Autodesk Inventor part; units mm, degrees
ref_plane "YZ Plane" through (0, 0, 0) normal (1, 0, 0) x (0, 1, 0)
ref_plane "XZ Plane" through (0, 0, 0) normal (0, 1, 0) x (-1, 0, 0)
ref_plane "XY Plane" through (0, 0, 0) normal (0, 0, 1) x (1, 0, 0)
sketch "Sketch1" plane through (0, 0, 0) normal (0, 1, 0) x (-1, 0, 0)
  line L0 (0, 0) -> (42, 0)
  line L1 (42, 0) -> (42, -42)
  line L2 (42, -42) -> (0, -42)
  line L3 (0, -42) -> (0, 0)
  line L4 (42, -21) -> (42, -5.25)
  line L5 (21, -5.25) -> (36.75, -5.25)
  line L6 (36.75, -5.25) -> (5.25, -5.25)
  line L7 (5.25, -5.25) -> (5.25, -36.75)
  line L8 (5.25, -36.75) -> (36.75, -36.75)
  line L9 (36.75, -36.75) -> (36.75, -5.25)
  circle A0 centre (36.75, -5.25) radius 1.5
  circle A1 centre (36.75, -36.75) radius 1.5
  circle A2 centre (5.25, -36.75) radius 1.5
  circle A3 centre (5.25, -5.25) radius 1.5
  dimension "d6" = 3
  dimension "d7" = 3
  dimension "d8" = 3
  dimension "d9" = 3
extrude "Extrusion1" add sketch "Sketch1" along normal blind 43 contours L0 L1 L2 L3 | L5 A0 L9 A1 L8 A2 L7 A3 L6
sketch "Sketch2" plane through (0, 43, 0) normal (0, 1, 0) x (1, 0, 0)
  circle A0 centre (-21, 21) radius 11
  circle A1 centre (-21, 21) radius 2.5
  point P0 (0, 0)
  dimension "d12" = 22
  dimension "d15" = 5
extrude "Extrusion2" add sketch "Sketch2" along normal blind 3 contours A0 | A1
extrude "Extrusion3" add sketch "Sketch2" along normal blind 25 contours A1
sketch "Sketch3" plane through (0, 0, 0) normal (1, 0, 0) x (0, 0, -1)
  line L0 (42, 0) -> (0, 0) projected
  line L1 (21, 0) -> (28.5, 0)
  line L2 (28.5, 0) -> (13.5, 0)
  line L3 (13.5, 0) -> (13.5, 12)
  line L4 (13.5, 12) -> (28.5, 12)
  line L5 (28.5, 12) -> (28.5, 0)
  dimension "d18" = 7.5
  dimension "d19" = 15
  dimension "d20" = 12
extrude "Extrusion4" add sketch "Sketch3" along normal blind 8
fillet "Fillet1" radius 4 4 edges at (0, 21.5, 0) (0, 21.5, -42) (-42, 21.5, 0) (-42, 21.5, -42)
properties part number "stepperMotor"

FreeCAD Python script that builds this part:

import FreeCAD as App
import Part
import Sketcher
Q = App.Units.Quantity


def edges_at(feature, points):
    """Names of the edges that pass closest to the given points."""
    edges = feature.Shape.Edges
    near = lambda p: min(range(len(edges)), key=lambda i: edges[i].distToShape(Part.Vertex(*p))[0])
    return sorted({f"Edge{near(p) + 1}" for p in points})


def add_polygon(sketch, points):
    """Adds a closed chain of lines whose ends are joined by coincident constraints."""
    first, n = sketch.GeometryCount, len(points)
    for a, b in zip(points, points[1:] + points[:1]):
        sketch.addGeometry(Part.LineSegment(App.Vector(*a, 0), App.Vector(*b, 0)), False)
    for i in range(n):
        sketch.addConstraint(Sketcher.Constraint("Coincident", first + i, 2, first + (i + 1) % n, 1))

doc = App.newDocument("Part")
body = doc.addObject("PartDesign::Body", "Body")

# Sketch on XZ plane
sketch1 = doc.addObject("Sketcher::SketchObject", "Sketch")
body.addObject(sketch1)
sketch1.AttachmentSupport = (doc.XZ_Plane, [""])
sketch1.MapMode = "FlatFace"
add_polygon(sketch1, [(-42, 0), (0, 0), (0, -42), (-42, -42)])  # lines 0-3
sketch1.addGeometry(Part.Circle(App.Vector(-5.2, -5.2, 0), App.Vector(0, 0, 1), 1.5), False)  # 4
sketch1.addGeometry(Part.Circle(App.Vector(-5.2, -36.8, 0), App.Vector(0, 0, 1), 1.5), False)  # 5
sketch1.addGeometry(Part.Circle(App.Vector(-36.8, -36.8, 0), App.Vector(0, 0, 1), 1.5), False)  # 6
sketch1.addGeometry(Part.Circle(App.Vector(-36.8, -5.2, 0), App.Vector(0, 0, 1), 1.5), False)  # 7
sketch1.addConstraint([
    Sketcher.Constraint("Horizontal", 0),
    Sketcher.Constraint("Vertical", 1),
    Sketcher.Constraint("Horizontal", 2),
    Sketcher.Constraint("Vertical", 3),
    Sketcher.Constraint("Coincident", 0, 2, -1, 1),
    Sketcher.Constraint("Equal", 4, 5),
    Sketcher.Constraint("Equal", 5, 6),
    Sketcher.Constraint("Equal", 6, 7),
    Sketcher.Constraint("Horizontal", 5, 3, 6, 3),
    Sketcher.Constraint("Horizontal", 4, 3, 7, 3),
    Sketcher.Constraint("Vertical", 4, 3, 5, 3),
    Sketcher.Constraint("Vertical", 6, 3, 7, 3),
    Sketcher.Constraint("Equal", 2, 1),
    Sketcher.Constraint("Diameter", 4, Q("3 mm")),
    Sketcher.Constraint("DistanceX", 0, 1, 0, 2, Q("42 mm")),
    Sketcher.Constraint("DistanceY", 5, 3, 4, 3, Q("31.5 mm")),
    Sketcher.Constraint("DistanceX", 6, 3, 5, 3, Q("31.5 mm")),
    Sketcher.Constraint("DistanceX", 4, 3, -1, 1, Q("5.25 mm")),
    Sketcher.Constraint("DistanceY", 4, 3, -1, 1, Q("5.25 mm")),
])
pad1 = doc.addObject("PartDesign::Pad", "Pad")
body.addObject(pad1)
pad1.Profile = sketch1
pad1.Length = 43
pad1.Reversed = True

# Sketch on XZ plane
sketch2 = doc.addObject("Sketcher::SketchObject", "Sketch001")
body.addObject(sketch2)
sketch2.AttachmentSupport = (doc.XZ_Plane, [""])
sketch2.MapMode = "FlatFace"
sketch2.AttachmentOffset = App.Placement(App.Vector(0, 0, -43), App.Rotation())
sketch2.addGeometry(Part.Circle(App.Vector(-21, -21, 0), App.Vector(0, 0, 1), 11), False)
sketch2.addConstraint([
    Sketcher.Constraint("Diameter", 0, Q("22 mm")),
    Sketcher.Constraint("DistanceX", 0, 3, -1, 1, Q("21 mm")),
    Sketcher.Constraint("DistanceY", 0, 3, -1, 1, Q("21 mm")),
])
pad2 = doc.addObject("PartDesign::Pad", "Pad001")
body.addObject(pad2)
pad2.Profile = sketch2
pad2.Length = 3
pad2.Reversed = True

# Sketch on XZ plane
sketch3 = doc.addObject("Sketcher::SketchObject", "Sketch002")
body.addObject(sketch3)
sketch3.AttachmentSupport = (doc.XZ_Plane, [""])
sketch3.MapMode = "FlatFace"
sketch3.AttachmentOffset = App.Placement(App.Vector(0, 0, -43), App.Rotation())
sketch3.addGeometry(Part.Circle(App.Vector(-21, -21, 0), App.Vector(0, 0, 1), 2.5), False)
sketch3.addConstraint([
    Sketcher.Constraint("Diameter", 0, Q("5 mm")),
    Sketcher.Constraint("DistanceX", 0, 3, -1, 1, Q("21 mm")),
    Sketcher.Constraint("DistanceY", 0, 3, -1, 1, Q("21 mm")),
])
pad3 = doc.addObject("PartDesign::Pad", "Pad002")
body.addObject(pad3)
pad3.Profile = sketch3
pad3.Length = 25
pad3.Reversed = True

# Sketch on YZ plane
sketch4 = doc.addObject("Sketcher::SketchObject", "Sketch003")
body.addObject(sketch4)
sketch4.AttachmentSupport = (doc.YZ_Plane, [""])
sketch4.MapMode = "FlatFace"
add_polygon(sketch4, [(0, -14), (0, -28), (12, -28), (12, -14)])  # lines 0-3
sketch4.addConstraint([
    Sketcher.Constraint("Vertical", 0),
    Sketcher.Constraint("Horizontal", 1),
    Sketcher.Constraint("Vertical", 2),
    Sketcher.Constraint("Horizontal", 3),
    Sketcher.Constraint("PointOnObject", 0, 2, -2),
    Sketcher.Constraint("DistanceX", 1, 1, 1, 2, Q("12 mm")),
    Sketcher.Constraint("DistanceY", 0, 2, 0, 1, Q("15 mm")),
    Sketcher.Constraint("DistanceY", 0, 2, -1, 1, Q("28.5 mm")),
])
pad4 = doc.addObject("PartDesign::Pad", "Pad003")
body.addObject(pad4)
pad4.Profile = sketch4
pad4.Length = 8
doc.recompute()

fillet = doc.addObject("PartDesign::Fillet", "Fillet")
body.addObject(fillet)
fillet.Base = (pad4, edges_at(pad4, [
    (0, 21.5, 0),
    (0, 21.5, -42),
    (-42, 21.5, 0),
    (-42, 21.5, -42),
]))
fillet.Radius = 4

doc.recompute()
